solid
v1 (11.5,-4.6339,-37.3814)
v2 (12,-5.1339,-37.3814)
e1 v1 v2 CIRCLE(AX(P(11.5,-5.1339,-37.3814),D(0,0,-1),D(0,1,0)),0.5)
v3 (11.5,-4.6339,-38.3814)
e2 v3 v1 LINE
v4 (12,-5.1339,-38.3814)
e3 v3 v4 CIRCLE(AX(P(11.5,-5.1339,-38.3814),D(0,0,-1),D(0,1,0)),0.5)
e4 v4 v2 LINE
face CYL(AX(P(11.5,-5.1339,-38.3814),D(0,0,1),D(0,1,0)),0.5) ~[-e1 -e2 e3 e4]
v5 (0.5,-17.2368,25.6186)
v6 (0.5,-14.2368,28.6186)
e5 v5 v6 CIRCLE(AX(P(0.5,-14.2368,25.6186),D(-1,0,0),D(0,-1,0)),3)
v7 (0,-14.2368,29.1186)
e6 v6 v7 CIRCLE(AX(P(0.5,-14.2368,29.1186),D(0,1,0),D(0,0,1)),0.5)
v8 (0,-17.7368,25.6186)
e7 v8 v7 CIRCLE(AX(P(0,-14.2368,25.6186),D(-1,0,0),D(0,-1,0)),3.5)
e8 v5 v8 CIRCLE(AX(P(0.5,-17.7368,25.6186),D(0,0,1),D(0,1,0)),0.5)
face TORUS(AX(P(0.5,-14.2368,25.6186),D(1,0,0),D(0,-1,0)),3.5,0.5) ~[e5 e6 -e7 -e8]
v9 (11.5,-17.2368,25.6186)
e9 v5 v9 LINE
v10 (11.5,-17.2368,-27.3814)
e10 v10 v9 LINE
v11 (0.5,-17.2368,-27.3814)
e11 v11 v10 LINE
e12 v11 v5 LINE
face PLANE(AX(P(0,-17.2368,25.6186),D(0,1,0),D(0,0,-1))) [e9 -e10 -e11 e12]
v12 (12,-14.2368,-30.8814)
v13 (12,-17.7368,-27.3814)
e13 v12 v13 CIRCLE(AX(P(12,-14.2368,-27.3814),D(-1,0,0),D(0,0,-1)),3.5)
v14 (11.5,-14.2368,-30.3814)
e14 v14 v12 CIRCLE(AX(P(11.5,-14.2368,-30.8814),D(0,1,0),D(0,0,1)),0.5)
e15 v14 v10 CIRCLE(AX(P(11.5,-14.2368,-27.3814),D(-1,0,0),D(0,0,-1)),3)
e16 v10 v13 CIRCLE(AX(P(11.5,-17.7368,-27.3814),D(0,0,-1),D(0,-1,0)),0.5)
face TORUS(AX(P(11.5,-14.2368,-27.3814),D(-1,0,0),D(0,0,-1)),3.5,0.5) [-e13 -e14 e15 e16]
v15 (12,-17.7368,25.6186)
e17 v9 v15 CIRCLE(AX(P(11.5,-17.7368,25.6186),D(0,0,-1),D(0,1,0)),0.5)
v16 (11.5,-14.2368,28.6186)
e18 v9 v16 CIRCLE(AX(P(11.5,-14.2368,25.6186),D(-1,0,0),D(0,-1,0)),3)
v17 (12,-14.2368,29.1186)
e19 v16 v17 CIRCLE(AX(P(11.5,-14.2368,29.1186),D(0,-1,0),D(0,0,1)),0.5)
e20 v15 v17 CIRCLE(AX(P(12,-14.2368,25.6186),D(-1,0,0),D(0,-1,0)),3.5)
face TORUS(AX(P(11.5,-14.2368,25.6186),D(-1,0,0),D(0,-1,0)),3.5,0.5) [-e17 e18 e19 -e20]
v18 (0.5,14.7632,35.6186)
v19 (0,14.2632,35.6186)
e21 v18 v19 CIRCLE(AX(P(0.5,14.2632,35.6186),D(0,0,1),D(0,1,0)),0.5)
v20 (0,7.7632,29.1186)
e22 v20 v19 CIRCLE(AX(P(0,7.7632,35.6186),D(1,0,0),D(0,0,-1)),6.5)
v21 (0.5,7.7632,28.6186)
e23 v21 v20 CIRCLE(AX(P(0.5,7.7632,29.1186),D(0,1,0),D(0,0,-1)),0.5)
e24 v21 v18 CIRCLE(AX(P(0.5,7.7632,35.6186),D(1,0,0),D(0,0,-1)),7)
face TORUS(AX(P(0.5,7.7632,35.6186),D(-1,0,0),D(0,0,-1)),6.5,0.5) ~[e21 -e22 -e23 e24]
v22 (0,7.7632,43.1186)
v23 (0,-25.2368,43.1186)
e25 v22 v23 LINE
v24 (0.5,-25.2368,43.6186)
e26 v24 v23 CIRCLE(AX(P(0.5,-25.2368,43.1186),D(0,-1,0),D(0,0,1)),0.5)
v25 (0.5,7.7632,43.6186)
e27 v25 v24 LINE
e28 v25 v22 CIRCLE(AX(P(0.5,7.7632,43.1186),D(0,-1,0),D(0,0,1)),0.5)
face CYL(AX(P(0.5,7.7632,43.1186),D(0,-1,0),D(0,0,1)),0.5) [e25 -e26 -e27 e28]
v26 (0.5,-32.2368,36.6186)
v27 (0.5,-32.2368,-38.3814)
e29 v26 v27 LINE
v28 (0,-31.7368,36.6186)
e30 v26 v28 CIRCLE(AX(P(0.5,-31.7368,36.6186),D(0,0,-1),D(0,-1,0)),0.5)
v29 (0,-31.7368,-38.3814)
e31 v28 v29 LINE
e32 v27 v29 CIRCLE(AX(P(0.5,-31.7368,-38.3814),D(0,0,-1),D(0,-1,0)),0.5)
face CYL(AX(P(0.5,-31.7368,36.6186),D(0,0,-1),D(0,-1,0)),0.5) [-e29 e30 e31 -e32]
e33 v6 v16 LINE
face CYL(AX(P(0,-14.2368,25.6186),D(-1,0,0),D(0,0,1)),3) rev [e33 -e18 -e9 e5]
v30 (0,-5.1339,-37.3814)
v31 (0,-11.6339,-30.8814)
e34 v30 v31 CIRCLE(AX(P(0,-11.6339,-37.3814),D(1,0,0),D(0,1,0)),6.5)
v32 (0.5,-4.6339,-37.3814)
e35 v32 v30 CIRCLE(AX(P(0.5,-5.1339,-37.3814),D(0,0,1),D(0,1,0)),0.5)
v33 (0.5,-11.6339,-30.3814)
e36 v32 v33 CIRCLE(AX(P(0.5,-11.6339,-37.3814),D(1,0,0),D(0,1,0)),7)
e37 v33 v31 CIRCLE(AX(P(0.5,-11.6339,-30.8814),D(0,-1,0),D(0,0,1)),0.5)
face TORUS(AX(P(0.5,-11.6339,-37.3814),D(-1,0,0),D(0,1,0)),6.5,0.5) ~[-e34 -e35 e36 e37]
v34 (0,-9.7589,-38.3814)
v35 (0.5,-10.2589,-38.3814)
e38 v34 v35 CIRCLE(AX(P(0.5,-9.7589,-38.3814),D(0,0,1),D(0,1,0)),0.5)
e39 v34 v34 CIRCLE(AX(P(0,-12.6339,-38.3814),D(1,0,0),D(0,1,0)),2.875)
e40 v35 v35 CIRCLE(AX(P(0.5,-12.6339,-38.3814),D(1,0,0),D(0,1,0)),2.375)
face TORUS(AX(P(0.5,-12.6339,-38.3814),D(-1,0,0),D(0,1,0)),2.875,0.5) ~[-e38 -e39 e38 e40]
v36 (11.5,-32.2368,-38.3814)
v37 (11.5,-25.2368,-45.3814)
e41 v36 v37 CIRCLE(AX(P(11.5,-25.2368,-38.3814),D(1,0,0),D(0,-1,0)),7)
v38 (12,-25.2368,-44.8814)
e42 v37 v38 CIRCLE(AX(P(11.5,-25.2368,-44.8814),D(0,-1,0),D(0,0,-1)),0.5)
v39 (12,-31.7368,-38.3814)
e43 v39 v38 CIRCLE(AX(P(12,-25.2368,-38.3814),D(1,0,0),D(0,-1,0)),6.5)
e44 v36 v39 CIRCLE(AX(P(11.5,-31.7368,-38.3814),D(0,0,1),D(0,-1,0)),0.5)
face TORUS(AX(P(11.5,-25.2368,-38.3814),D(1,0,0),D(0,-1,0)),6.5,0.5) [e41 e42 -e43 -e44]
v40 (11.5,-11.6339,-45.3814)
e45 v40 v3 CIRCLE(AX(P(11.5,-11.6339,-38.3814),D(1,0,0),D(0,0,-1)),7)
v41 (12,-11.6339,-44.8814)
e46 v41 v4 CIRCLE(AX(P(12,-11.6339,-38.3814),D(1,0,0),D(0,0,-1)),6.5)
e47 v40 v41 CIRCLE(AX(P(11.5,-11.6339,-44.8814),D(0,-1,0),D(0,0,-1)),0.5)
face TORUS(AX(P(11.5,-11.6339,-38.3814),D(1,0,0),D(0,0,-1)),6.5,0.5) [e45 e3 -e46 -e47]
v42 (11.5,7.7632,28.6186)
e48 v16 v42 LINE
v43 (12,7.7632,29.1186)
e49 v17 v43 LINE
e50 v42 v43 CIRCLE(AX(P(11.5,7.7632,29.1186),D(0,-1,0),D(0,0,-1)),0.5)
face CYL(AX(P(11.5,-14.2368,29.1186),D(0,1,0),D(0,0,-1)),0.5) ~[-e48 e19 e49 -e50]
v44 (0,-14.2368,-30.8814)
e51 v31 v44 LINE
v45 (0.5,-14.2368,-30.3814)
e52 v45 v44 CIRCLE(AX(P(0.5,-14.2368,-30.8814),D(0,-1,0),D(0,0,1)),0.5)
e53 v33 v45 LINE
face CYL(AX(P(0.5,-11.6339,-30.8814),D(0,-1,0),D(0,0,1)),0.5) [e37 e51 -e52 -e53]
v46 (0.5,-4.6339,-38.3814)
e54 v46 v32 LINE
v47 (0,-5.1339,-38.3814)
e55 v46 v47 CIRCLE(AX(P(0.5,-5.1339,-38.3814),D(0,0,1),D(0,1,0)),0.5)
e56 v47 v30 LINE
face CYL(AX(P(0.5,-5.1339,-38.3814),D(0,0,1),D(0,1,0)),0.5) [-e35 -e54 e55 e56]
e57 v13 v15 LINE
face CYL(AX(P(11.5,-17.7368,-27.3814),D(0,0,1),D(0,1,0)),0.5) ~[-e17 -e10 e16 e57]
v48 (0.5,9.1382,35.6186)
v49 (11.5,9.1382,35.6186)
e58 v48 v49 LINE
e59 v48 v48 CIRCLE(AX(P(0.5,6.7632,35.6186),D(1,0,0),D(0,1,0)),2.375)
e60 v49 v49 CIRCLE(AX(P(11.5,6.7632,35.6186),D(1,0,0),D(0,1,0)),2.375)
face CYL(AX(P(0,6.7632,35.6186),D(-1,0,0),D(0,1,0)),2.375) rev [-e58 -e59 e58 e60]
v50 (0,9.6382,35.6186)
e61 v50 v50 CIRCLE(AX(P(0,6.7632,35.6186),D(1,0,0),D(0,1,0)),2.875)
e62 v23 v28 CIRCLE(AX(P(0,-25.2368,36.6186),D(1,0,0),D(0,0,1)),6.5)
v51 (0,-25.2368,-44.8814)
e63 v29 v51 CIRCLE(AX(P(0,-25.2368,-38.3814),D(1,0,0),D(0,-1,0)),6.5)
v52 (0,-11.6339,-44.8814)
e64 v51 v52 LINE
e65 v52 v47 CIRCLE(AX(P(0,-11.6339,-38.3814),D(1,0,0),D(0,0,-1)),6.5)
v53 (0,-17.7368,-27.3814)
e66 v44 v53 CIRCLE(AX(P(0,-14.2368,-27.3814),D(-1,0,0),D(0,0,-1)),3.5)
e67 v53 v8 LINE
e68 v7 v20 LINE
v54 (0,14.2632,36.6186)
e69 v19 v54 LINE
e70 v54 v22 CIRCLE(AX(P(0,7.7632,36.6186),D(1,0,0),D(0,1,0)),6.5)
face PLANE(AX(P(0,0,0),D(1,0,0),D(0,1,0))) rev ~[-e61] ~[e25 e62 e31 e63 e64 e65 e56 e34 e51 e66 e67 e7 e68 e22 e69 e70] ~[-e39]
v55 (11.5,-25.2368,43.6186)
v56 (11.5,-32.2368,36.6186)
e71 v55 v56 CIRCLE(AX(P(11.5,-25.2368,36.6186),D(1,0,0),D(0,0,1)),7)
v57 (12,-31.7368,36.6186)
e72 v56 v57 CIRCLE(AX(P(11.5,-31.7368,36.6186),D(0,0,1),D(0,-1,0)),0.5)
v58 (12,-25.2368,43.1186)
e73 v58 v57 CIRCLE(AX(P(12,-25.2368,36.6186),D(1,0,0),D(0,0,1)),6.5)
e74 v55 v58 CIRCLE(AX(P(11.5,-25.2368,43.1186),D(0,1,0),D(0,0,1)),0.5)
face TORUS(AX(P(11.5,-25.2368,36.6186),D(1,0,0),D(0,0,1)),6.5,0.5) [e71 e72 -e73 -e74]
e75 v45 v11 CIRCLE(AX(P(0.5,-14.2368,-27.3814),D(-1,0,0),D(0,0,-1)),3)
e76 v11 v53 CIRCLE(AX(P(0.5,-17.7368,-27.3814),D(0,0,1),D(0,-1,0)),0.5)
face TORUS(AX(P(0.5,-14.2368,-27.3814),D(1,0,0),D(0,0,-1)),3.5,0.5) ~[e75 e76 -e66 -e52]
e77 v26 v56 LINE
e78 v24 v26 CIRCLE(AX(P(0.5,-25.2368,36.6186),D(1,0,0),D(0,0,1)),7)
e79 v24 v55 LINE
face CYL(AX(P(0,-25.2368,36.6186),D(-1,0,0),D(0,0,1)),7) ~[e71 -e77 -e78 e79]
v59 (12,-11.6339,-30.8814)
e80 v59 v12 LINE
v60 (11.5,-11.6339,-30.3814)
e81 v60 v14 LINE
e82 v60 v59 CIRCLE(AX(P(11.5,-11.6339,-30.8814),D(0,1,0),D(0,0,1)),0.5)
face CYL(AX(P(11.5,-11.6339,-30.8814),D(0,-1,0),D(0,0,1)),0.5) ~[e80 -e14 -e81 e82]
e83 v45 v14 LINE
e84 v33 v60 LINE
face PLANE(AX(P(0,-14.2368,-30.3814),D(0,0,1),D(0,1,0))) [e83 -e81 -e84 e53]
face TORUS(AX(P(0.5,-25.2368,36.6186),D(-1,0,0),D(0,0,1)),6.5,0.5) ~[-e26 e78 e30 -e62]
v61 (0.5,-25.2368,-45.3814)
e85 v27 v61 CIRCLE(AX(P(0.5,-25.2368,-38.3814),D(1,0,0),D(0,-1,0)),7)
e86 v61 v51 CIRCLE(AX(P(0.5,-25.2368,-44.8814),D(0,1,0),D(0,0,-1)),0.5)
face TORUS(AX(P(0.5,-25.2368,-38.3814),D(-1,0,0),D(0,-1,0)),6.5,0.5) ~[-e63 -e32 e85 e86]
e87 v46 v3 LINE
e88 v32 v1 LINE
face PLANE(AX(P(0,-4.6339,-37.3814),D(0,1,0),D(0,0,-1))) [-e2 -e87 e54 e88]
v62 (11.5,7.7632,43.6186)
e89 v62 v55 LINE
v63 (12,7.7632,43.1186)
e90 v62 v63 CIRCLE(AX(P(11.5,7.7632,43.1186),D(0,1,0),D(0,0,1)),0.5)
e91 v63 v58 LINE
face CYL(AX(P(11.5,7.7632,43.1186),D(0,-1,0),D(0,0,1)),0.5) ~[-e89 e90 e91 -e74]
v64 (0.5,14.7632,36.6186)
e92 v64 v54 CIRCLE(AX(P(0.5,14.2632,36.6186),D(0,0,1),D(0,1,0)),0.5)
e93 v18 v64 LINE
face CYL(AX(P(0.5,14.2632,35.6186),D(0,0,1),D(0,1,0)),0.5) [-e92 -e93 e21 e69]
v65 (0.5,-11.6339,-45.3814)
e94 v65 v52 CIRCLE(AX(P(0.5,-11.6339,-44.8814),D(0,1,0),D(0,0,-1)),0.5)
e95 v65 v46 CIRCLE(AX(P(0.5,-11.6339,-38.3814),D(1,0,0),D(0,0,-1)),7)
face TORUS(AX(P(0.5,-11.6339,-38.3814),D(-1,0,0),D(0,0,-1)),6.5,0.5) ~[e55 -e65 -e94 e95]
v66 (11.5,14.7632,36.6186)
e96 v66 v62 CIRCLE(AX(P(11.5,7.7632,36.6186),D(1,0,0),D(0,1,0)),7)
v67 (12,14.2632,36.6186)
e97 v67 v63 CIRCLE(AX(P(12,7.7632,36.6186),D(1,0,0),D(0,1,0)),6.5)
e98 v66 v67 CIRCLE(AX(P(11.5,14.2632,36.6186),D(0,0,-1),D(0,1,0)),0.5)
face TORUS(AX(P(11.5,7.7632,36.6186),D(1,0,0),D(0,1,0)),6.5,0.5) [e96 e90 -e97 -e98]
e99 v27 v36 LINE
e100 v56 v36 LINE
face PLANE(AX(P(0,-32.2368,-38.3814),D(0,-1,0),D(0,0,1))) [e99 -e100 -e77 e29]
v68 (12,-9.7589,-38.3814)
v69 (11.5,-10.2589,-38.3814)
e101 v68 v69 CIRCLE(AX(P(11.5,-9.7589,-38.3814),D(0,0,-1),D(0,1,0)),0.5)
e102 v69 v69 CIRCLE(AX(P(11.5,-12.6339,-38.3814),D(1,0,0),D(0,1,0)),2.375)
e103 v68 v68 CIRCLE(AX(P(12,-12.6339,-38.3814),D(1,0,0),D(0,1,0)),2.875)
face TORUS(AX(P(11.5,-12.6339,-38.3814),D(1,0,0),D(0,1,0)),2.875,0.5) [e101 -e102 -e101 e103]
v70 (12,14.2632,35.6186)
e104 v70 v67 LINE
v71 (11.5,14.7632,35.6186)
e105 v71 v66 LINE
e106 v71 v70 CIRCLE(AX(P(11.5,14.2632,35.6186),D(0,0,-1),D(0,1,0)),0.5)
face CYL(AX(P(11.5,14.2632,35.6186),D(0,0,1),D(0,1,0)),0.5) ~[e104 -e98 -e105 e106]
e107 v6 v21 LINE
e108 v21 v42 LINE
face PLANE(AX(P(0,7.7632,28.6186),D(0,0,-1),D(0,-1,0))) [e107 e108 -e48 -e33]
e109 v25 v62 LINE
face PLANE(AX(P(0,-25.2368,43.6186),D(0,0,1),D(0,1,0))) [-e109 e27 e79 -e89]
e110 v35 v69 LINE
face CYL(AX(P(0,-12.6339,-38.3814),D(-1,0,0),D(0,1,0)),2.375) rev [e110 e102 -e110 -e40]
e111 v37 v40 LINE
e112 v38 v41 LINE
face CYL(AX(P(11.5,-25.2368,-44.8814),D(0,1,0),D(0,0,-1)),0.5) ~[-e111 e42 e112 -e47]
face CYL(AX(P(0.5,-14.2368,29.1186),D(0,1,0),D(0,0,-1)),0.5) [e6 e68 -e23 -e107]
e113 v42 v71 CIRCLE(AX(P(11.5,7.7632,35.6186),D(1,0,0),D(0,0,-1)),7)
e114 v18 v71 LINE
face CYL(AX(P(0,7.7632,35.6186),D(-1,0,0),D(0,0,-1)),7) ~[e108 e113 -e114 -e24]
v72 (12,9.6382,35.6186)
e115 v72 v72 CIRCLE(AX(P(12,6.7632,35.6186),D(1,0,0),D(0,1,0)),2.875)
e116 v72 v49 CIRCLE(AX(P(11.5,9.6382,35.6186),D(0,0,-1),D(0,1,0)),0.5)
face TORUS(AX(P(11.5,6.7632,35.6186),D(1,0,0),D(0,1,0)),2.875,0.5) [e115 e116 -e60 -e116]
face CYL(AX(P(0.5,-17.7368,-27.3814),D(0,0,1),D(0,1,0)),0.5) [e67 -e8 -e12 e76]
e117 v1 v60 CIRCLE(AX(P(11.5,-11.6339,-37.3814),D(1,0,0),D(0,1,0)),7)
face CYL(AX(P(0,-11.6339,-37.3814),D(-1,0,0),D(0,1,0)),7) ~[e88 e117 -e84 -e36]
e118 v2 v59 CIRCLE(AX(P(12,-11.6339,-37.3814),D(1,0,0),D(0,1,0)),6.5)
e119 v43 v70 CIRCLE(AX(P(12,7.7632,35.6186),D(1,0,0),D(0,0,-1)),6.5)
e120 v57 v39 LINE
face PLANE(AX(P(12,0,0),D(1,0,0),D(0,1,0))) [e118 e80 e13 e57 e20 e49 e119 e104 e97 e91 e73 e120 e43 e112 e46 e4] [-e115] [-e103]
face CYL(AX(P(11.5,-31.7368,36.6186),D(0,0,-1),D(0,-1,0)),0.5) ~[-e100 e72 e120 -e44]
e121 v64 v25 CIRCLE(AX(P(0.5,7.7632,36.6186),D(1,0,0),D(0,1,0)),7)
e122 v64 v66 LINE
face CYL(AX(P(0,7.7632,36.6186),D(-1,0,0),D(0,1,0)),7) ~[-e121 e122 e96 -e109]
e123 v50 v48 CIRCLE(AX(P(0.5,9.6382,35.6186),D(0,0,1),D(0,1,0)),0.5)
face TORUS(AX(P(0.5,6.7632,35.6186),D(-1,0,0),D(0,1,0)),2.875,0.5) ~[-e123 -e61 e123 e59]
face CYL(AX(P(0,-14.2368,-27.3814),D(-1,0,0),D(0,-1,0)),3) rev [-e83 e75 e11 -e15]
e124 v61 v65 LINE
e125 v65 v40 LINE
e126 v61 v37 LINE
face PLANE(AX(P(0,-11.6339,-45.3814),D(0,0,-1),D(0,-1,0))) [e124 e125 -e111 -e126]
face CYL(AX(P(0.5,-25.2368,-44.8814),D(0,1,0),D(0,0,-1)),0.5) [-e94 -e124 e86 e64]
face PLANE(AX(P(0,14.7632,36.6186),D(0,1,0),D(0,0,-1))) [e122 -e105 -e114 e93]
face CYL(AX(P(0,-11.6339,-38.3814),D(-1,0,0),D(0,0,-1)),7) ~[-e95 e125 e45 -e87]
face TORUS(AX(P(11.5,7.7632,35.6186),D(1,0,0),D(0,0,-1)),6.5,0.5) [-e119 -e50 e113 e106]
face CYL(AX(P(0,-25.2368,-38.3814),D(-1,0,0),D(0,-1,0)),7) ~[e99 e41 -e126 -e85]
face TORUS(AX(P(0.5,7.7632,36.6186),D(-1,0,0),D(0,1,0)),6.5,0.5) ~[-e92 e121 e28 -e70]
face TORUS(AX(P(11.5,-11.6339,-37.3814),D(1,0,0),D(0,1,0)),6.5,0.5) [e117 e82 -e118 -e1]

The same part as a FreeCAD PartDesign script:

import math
import FreeCAD as App
import Part
import Sketcher
Q = App.Units.Quantity


def edges_at(feature, points):
    """Names of the edges that pass closest to the given points."""
    edges = feature.Shape.Edges
    near = lambda p: min(range(len(edges)), key=lambda i: edges[i].distToShape(Part.Vertex(*p))[0])
    return sorted({f"Edge{near(p) + 1}" for p in points})

doc = App.newDocument("Part")
params = doc.addObject("Spreadsheet::Sheet", "Params")
for row, (alias, value) in enumerate([
    ("sketch1_radius", "7 mm"),
    ("sketch1_radius2", "3 mm"),
    ("sketch1_diameter", "4.75 mm"),
    ("sketch1_width", "22 mm"),
    ("sketch1_height", "75 mm"),
    ("pad1_length", "12 mm"),
    ("fillet_radius", "0.5 mm"),
    ("fillet2_radius", "0.5 mm"),
], start=1):
    params.set(f"A{row}", alias)
    params.set(f"B{row}", "=" + value)
    params.setAlias(f"B{row}", alias)

body = doc.addObject("PartDesign::Body", "Body")

sketch1 = body.newObject("Sketcher::SketchObject", "Sketch")
sketch1.AttachmentSupport = (doc.getObject("YZ_Plane"), [""])
sketch1.MapMode = "FlatFace"
sketch1.addGeometry([
    Part.LineSegment(App.Vector(-14.2368, 28.6186, 0), App.Vector(7.7632, 28.6186, 0)),
    Part.ArcOfCircle(Part.Circle(App.Vector(7.7632, 35.6186, 0), App.Vector(0, 0, 1), 7), math.radians(-90), math.radians(0)),
    Part.LineSegment(App.Vector(14.7632, 35.6186, 0), App.Vector(14.7632, 36.6186, 0)),
    Part.ArcOfCircle(Part.Circle(App.Vector(7.7632, 36.6186, 0), App.Vector(0, 0, 1), 7), math.radians(0), math.radians(90)),
    Part.LineSegment(App.Vector(7.7632, 43.6186, 0), App.Vector(-25.2368, 43.6186, 0)),
    Part.ArcOfCircle(Part.Circle(App.Vector(-25.2368, 36.6186, 0), App.Vector(0, 0, 1), 7), math.radians(90), math.radians(180)),
    Part.LineSegment(App.Vector(-32.2368, 36.6186, 0), App.Vector(-32.2368, -38.3814, 0)),
    Part.ArcOfCircle(Part.Circle(App.Vector(-25.2368, -38.3814, 0), App.Vector(0, 0, 1), 7), math.radians(180), math.radians(270)),
    Part.LineSegment(App.Vector(-25.2368, -45.3814, 0), App.Vector(-11.6339, -45.3814, 0)),
    Part.ArcOfCircle(Part.Circle(App.Vector(-11.6339, -38.3814, 0), App.Vector(0, 0, 1), 7), math.radians(-90), math.radians(0)),
    Part.LineSegment(App.Vector(-4.6339, -38.3814, 0), App.Vector(-4.6339, -37.3814, 0)),
    Part.ArcOfCircle(Part.Circle(App.Vector(-11.6339, -37.3814, 0), App.Vector(0, 0, 1), 7), math.radians(0), math.radians(90)),
    Part.LineSegment(App.Vector(-11.6339, -30.3814, 0), App.Vector(-14.2368, -30.3814, 0)),
    Part.ArcOfCircle(Part.Circle(App.Vector(-14.2368, -27.3814, 0), App.Vector(0, 0, 1), 3), math.radians(180), math.radians(270)),
    Part.LineSegment(App.Vector(-17.2368, -27.3814, 0), App.Vector(-17.2368, 25.6186, 0)),
    Part.ArcOfCircle(Part.Circle(App.Vector(-14.2368, 25.6186, 0), App.Vector(0, 0, 1), 3), math.radians(90), math.radians(180)),
    Part.Circle(App.Vector(-12.6339, -38.3814, 0), App.Vector(0, 0, 1), 2.375),
    Part.Circle(App.Vector(6.7632, 35.6186, 0), App.Vector(0, 0, 1), 2.375),
], False)
sketch1.addConstraint([
    Sketcher.Constraint("Tangent", 0, 2, 1, 1),
    Sketcher.Constraint("Tangent", 1, 2, 2, 1),
    Sketcher.Constraint("Tangent", 2, 2, 3, 1),
    Sketcher.Constraint("Tangent", 3, 2, 4, 1),
    Sketcher.Constraint("Tangent", 4, 2, 5, 1),
    Sketcher.Constraint("Tangent", 5, 2, 6, 1),
    Sketcher.Constraint("Tangent", 6, 2, 7, 1),
    Sketcher.Constraint("Tangent", 7, 2, 8, 1),
    Sketcher.Constraint("Tangent", 8, 2, 9, 1),
    Sketcher.Constraint("Tangent", 9, 2, 10, 1),
    Sketcher.Constraint("Tangent", 10, 2, 11, 1),
    Sketcher.Constraint("Tangent", 11, 2, 12, 1),
    Sketcher.Constraint("Tangent", 12, 2, 13, 2),
    Sketcher.Constraint("Tangent", 13, 1, 14, 1),
    Sketcher.Constraint("Tangent", 14, 2, 15, 2),
    Sketcher.Constraint("Tangent", 15, 1, 0, 1),
    Sketcher.Constraint("Horizontal", 0),
    Sketcher.Constraint("Vertical", 2),
    Sketcher.Constraint("Horizontal", 4),
    Sketcher.Constraint("Vertical", 6),
    Sketcher.Constraint("Horizontal", 8),
    Sketcher.Constraint("Vertical", 10),
    Sketcher.Constraint("Horizontal", 12),
    Sketcher.Constraint("Vertical", 14),
    Sketcher.Constraint("Equal", 1, 3),
    Sketcher.Constraint("Equal", 3, 5),
    Sketcher.Constraint("Equal", 5, 7),
    Sketcher.Constraint("Equal", 7, 9),
    Sketcher.Constraint("Equal", 9, 11),
    Sketcher.Constraint("Equal", 13, 15),
    Sketcher.Constraint("Equal", 16, 17),
    Sketcher.Constraint("Horizontal", 9, 3, 16, 3),
    Sketcher.Constraint("Horizontal", 1, 3, 17, 3),
    Sketcher.Constraint("Equal", 2, 10),
    Sketcher.Constraint("Radius", 1, Q("7 mm")),
    Sketcher.Constraint("Radius", 13, Q("3 mm")),
    Sketcher.Constraint("Diameter", 16, Q("4.75 mm")),
    Sketcher.Constraint("DistanceY", 0, 2, 3, 3, Q("8 mm")),
    Sketcher.Constraint("DistanceX", 17, 3, 1, 2, Q("8 mm")),
    Sketcher.Constraint("DistanceX", 16, 3, 9, 2, Q("8 mm")),
    Sketcher.Constraint("DistanceX", 5, 3, 14, 2, Q("8 mm")),
    Sketcher.Constraint("DistanceX", 0, 1, 0, 2, Q("22 mm")),
    Sketcher.Constraint("DistanceY", 6, 2, 6, 1, Q("75 mm")),
    Sketcher.Constraint("DistanceX", 8, 1, 8, 2, Q("13.603 mm")),
    Sketcher.Constraint("DistanceX", 9, 3, -1, 1, Q("11.634 mm")),
    Sketcher.Constraint("DistanceY", -1, 1, 1, 3, Q("35.6186 mm")),
])
sketch1.setExpression("Constraints[34]", "Params.sketch1_radius")
sketch1.setExpression("Constraints[35]", "Params.sketch1_radius2")
sketch1.setExpression("Constraints[36]", "Params.sketch1_diameter")
sketch1.setExpression("Constraints[41]", "Params.sketch1_width")
sketch1.setExpression("Constraints[42]", "Params.sketch1_height")
pad1 = body.newObject("PartDesign::Pad", "Pad")
pad1.Profile = sketch1
pad1.setExpression("Length", "Params.pad1_length")
doc.recompute()

fillet = body.newObject("PartDesign::Fillet", "Fillet")
fillet.Base = (pad1, edges_at(pad1, [
    (12, -30.186, 41.568),
    (12, -32.237, -0.881),
    (12, -30.186, -43.331),
    (12, -18.435, -45.381),
    (12, -6.684, -43.331),
    (12, -4.634, -37.881),
    (12, -6.684, -32.432),
    (12, -12.935, -30.381),
    (12, -16.358, -29.503),
    (12, -17.237, -0.881),
    (12, -16.358, 27.74),
    (12, -3.237, 28.619),
    (12, 12.713, 30.669),
    (12, 14.763, 36.119),
    (12, 12.713, 41.568),
    (12, -8.737, 43.619),
    (0, -30.186, 41.568),
    (0, -32.237, -0.881),
    (0, -30.186, -43.331),
    (0, -18.435, -45.381),
    (0, -6.684, -43.331),
    (0, -4.634, -37.881),
    (0, -6.684, -32.432),
    (0, -12.935, -30.381),
    (0, -16.358, -29.503),
    (0, -17.237, -0.881),
    (0, -16.358, 27.74),
    (0, -3.237, 28.619),
    (0, 12.713, 30.669),
    (0, 14.763, 36.119),
    (0, 12.713, 41.568),
    (0, -8.737, 43.619),
]))
fillet.setExpression("Radius", "Params.fillet_radius")
doc.recompute()

fillet2 = body.newObject("PartDesign::Fillet", "Fillet001")
fillet2.Base = (fillet, edges_at(fillet, [
    (12, 4.388, 35.619),
    (0, -15.009, -38.381),
    (12, -15.009, -38.381),
    (0, 4.388, 35.619),
]))
fillet2.setExpression("Radius", "Params.fillet2_radius")

doc.recompute()
